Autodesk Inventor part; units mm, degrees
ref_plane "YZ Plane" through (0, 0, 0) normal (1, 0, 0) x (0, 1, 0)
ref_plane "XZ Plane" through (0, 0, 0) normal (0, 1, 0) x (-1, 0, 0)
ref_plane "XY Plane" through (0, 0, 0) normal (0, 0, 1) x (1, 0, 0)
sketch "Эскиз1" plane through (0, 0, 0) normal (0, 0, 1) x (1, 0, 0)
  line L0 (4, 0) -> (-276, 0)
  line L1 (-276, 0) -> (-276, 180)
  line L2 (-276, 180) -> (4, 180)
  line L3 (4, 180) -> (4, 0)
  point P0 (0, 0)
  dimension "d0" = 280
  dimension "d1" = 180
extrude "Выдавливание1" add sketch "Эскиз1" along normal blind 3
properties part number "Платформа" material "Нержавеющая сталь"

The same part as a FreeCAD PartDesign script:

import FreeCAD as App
import Part
import Sketcher
from FreeCAD import Vector

doc = App.newDocument("Part")
body = doc.addObject("PartDesign::Body", "Body")

sketch1 = body.newObject("Sketcher::SketchObject", "Sketch")
sketch1.AttachmentSupport = (doc.getObject("XY_Plane"), [""])
sketch1.MapMode = "FlatFace"
sketch1.addGeometry(Part.LineSegment(Vector(-276, 0, 0), Vector(4, 0, 0)), False)
sketch1.addGeometry(Part.LineSegment(Vector(4, 0, 0), Vector(4, 180, 0)), False)
sketch1.addGeometry(Part.LineSegment(Vector(4, 180, 0), Vector(-276, 180, 0)), False)
sketch1.addGeometry(Part.LineSegment(Vector(-276, 180, 0), Vector(-276, 0, 0)), False)
sketch1.addConstraint(Sketcher.Constraint("Coincident", 0, 2, 1, 1))
sketch1.addConstraint(Sketcher.Constraint("Coincident", 1, 2, 2, 1))
sketch1.addConstraint(Sketcher.Constraint("Coincident", 2, 2, 3, 1))
sketch1.addConstraint(Sketcher.Constraint("Coincident", 3, 2, 0, 1))
sketch1.addConstraint(Sketcher.Constraint("Horizontal", 0))
sketch1.addConstraint(Sketcher.Constraint("Vertical", 1))
sketch1.addConstraint(Sketcher.Constraint("Horizontal", 2))
sketch1.addConstraint(Sketcher.Constraint("Vertical", 3))
sketch1.addConstraint(Sketcher.Constraint("PointOnObject", 0, 2, -1))
sketch1.addConstraint(Sketcher.Constraint("DistanceX", 0, 1, 0, 2, 280.0))
sketch1.addConstraint(Sketcher.Constraint("DistanceY", 1, 1, 1, 2, 180.0))
sketch1.addConstraint(Sketcher.Constraint("DistanceX", -1, 1, 0, 2, 4.0))
pad1 = body.newObject("PartDesign::Pad", "Pad")
pad1.Profile = sketch1
pad1.Length = 3

doc.recompute()
